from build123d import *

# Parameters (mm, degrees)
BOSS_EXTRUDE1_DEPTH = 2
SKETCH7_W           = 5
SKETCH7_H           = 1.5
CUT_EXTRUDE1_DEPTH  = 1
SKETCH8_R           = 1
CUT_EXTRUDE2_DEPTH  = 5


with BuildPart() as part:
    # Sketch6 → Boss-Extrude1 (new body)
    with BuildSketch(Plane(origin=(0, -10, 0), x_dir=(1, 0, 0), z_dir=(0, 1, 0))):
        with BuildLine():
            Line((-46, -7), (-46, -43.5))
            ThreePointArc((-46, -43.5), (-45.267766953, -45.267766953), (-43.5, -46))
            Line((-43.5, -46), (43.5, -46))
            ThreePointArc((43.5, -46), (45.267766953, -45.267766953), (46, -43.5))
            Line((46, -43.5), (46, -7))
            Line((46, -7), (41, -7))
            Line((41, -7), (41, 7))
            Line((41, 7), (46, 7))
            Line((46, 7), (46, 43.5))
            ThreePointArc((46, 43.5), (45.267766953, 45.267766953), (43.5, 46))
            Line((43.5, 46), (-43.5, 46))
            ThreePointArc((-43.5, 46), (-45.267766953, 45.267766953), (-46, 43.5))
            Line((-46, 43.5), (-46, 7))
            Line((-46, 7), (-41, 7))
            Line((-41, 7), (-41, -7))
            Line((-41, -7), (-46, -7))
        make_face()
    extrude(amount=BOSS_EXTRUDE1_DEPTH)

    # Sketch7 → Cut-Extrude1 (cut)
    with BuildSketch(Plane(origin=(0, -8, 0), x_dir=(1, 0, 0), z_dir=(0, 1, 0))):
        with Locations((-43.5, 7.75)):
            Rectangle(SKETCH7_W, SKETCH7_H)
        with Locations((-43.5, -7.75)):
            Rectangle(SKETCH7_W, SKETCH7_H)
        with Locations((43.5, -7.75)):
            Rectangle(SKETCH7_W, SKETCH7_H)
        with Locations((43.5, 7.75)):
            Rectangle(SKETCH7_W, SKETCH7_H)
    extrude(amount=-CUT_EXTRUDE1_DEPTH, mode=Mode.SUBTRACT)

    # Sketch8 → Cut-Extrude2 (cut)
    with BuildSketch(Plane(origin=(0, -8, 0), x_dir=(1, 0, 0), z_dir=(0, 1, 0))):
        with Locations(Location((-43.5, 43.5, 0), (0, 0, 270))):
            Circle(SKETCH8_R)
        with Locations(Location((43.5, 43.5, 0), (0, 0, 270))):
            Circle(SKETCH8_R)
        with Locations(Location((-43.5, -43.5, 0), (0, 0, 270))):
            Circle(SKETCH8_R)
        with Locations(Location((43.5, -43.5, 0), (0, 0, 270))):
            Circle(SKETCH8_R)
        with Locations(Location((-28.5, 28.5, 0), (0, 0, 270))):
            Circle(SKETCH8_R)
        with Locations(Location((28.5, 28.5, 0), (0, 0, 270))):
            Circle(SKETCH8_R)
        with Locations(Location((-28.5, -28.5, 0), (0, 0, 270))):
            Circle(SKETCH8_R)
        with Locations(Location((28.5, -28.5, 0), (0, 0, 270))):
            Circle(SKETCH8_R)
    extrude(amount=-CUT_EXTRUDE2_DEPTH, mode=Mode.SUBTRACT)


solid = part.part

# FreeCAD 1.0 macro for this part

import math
import FreeCAD as App
import Part
import Sketcher
from FreeCAD import Vector
Q = App.Units.Quantity


def add_polygon(sketch, points):
    """Adds a closed chain of lines whose ends are joined by coincident constraints."""
    first, n = sketch.GeometryCount, len(points)
    for a, b in zip(points, points[1:] + points[:1]):
        sketch.addGeometry(Part.LineSegment(App.Vector(*a, 0), App.Vector(*b, 0)), False)
    for i in range(n):
        sketch.addConstraint(Sketcher.Constraint("Coincident", first + i, 2, first + (i + 1) % n, 1))

doc = App.newDocument("Part")
body = doc.addObject("PartDesign::Body", "Body")

# Sketch on XZ plane
sketch1 = doc.addObject("Sketcher::SketchObject", "Sketch")
body.addObject(sketch1)
sketch1.AttachmentSupport = (doc.XZ_Plane, [""])
sketch1.MapMode = "FlatFace"
sketch1.AttachmentOffset = App.Placement(Vector(0, 0, 10), App.Rotation())
sketch1.addGeometry(Part.LineSegment(Vector(-46, 7, 0), Vector(-46, 43.5, 0)), False)
sketch1.addGeometry(Part.ArcOfCircle(Part.Circle(Vector(-43.5, 43.5, 0), Vector(0, 0, 1), 2.5), math.radians(90), math.radians(180)), False)
sketch1.addGeometry(Part.LineSegment(Vector(-43.5, 46, 0), Vector(43.5, 46, 0)), False)
sketch1.addGeometry(Part.ArcOfCircle(Part.Circle(Vector(43.5, 43.5, 0), Vector(0, 0, 1), 2.5), math.radians(0), math.radians(90)), False)
sketch1.addGeometry(Part.LineSegment(Vector(46, 43.5, 0), Vector(46, 7, 0)), False)
sketch1.addGeometry(Part.LineSegment(Vector(46, 7, 0), Vector(41, 7, 0)), False)
sketch1.addGeometry(Part.LineSegment(Vector(41, 7, 0), Vector(41, -7, 0)), False)
sketch1.addGeometry(Part.LineSegment(Vector(41, -7, 0), Vector(46, -7, 0)), False)
sketch1.addGeometry(Part.LineSegment(Vector(46, -7, 0), Vector(46, -43.5, 0)), False)
sketch1.addGeometry(Part.ArcOfCircle(Part.Circle(Vector(43.5, -43.5, 0), Vector(0, 0, 1), 2.5), math.radians(-90), math.radians(0)), False)
sketch1.addGeometry(Part.LineSegment(Vector(43.5, -46, 0), Vector(-43.5, -46, 0)), False)
sketch1.addGeometry(Part.ArcOfCircle(Part.Circle(Vector(-43.5, -43.5, 0), Vector(0, 0, 1), 2.5), math.radians(180), math.radians(270)), False)
sketch1.addGeometry(Part.LineSegment(Vector(-46, -43.5, 0), Vector(-46, -7, 0)), False)
sketch1.addGeometry(Part.LineSegment(Vector(-46, -7, 0), Vector(-41, -7, 0)), False)
sketch1.addGeometry(Part.LineSegment(Vector(-41, -7, 0), Vector(-41, 7, 0)), False)
sketch1.addGeometry(Part.LineSegment(Vector(-41, 7, 0), Vector(-46, 7, 0)), False)
sketch1.addConstraint(Sketcher.Constraint("Tangent", 0, 2, 1, 2))
sketch1.addConstraint(Sketcher.Constraint("Tangent", 1, 1, 2, 1))
sketch1.addConstraint(Sketcher.Constraint("Tangent", 2, 2, 3, 2))
sketch1.addConstraint(Sketcher.Constraint("Tangent", 3, 1, 4, 1))
sketch1.addConstraint(Sketcher.Constraint("Coincident", 4, 2, 5, 1))
sketch1.addConstraint(Sketcher.Constraint("Coincident", 5, 2, 6, 1))
sketch1.addConstraint(Sketcher.Constraint("Coincident", 6, 2, 7, 1))
sketch1.addConstraint(Sketcher.Constraint("Coincident", 7, 2, 8, 1))
sketch1.addConstraint(Sketcher.Constraint("Tangent", 8, 2, 9, 2))
sketch1.addConstraint(Sketcher.Constraint("Tangent", 9, 1, 10, 1))
sketch1.addConstraint(Sketcher.Constraint("Tangent", 10, 2, 11, 2))
sketch1.addConstraint(Sketcher.Constraint("Tangent", 11, 1, 12, 1))
sketch1.addConstraint(Sketcher.Constraint("Coincident", 12, 2, 13, 1))
sketch1.addConstraint(Sketcher.Constraint("Coincident", 13, 2, 14, 1))
sketch1.addConstraint(Sketcher.Constraint("Coincident", 14, 2, 15, 1))
sketch1.addConstraint(Sketcher.Constraint("Coincident", 15, 2, 0, 1))
sketch1.addConstraint(Sketcher.Constraint("Vertical", 0))
sketch1.addConstraint(Sketcher.Constraint("Horizontal", 2))
sketch1.addConstraint(Sketcher.Constraint("Vertical", 4))
sketch1.addConstraint(Sketcher.Constraint("Horizontal", 5))
sketch1.addConstraint(Sketcher.Constraint("Vertical", 6))
sketch1.addConstraint(Sketcher.Constraint("Horizontal", 7))
sketch1.addConstraint(Sketcher.Constraint("Vertical", 8))
sketch1.addConstraint(Sketcher.Constraint("Horizontal", 10))
sketch1.addConstraint(Sketcher.Constraint("Vertical", 12))
sketch1.addConstraint(Sketcher.Constraint("Horizontal", 13))
sketch1.addConstraint(Sketcher.Constraint("Vertical", 14))
sketch1.addConstraint(Sketcher.Constraint("Horizontal", 15))
sketch1.addConstraint(Sketcher.Constraint("Equal", 1, 3))
sketch1.addConstraint(Sketcher.Constraint("Equal", 3, 9))
sketch1.addConstraint(Sketcher.Constraint("Equal", 9, 11))
sketch1.addConstraint(Sketcher.Constraint("Symmetric", 1, 3, 9, 3, -1, 1))
sketch1.addConstraint(Sketcher.Constraint("Symmetric", 4, 2, 12, 2, -1, 1))
sketch1.addConstraint(Sketcher.Constraint("Symmetric", 6, 2, 14, 2, -1, 1))
sketch1.addConstraint(Sketcher.Constraint("Symmetric", 7, 2, 12, 2, -2))
sketch1.addConstraint(Sketcher.Constraint("Radius", 1, Q("2.5 mm")))
sketch1.addConstraint(Sketcher.Constraint("DistanceX", 2, 1, 2, 2, Q("87 mm")))
sketch1.addConstraint(Sketcher.Constraint("DistanceX", 5, 2, 5, 1, Q("5 mm")))
sketch1.addConstraint(Sketcher.Constraint("DistanceY", 6, 2, 6, 1, Q("14 mm")))
sketch1.addConstraint(Sketcher.Constraint("DistanceY", 0, 1, 0, 2, Q("36.5 mm")))
pad1 = doc.addObject("PartDesign::Pad", "Pad")
body.addObject(pad1)
pad1.Profile = sketch1
pad1.Length = 2
pad1.Reversed = True

# Sketch on XZ plane
sketch2 = doc.addObject("Sketcher::SketchObject", "Sketch001")
body.addObject(sketch2)
sketch2.AttachmentSupport = (doc.XZ_Plane, [""])
sketch2.MapMode = "FlatFace"
sketch2.AttachmentOffset = App.Placement(Vector(0, 0, 8), App.Rotation())
add_polygon(sketch2, [(-46, -8.5), (-46, -7), (-41, -7), (-41, -8.5)])  # lines 0-3
add_polygon(sketch2, [(-46, 7), (-46, 8.5), (-41, 8.5), (-41, 7)])  # lines 4-7
add_polygon(sketch2, [(41, 7), (41, 8.5), (46, 8.5), (46, 7)])  # lines 8-11
add_polygon(sketch2, [(41, -8.5), (41, -7), (46, -7), (46, -8.5)])  # lines 12-15
sketch2.addConstraint(Sketcher.Constraint("Vertical", 0))
sketch2.addConstraint(Sketcher.Constraint("Horizontal", 1))
sketch2.addConstraint(Sketcher.Constraint("Vertical", 2))
sketch2.addConstraint(Sketcher.Constraint("Horizontal", 3))
sketch2.addConstraint(Sketcher.Constraint("Vertical", 4))
sketch2.addConstraint(Sketcher.Constraint("Horizontal", 5))
sketch2.addConstraint(Sketcher.Constraint("Vertical", 6))
sketch2.addConstraint(Sketcher.Constraint("Horizontal", 7))
sketch2.addConstraint(Sketcher.Constraint("Vertical", 8))
sketch2.addConstraint(Sketcher.Constraint("Horizontal", 9))
sketch2.addConstraint(Sketcher.Constraint("Vertical", 10))
sketch2.addConstraint(Sketcher.Constraint("Horizontal", 11))
sketch2.addConstraint(Sketcher.Constraint("Vertical", 12))
sketch2.addConstraint(Sketcher.Constraint("Horizontal", 13))
sketch2.addConstraint(Sketcher.Constraint("Vertical", 14))
sketch2.addConstraint(Sketcher.Constraint("Horizontal", 15))
sketch2.addConstraint(Sketcher.Constraint("Symmetric", 2, 2, 8, 2, -1, 1))
sketch2.addConstraint(Sketcher.Constraint("Symmetric", 0, 2, 10, 2, -1, 1))
sketch2.addConstraint(Sketcher.Constraint("Symmetric", 6, 2, 12, 2, -1, 1))
sketch2.addConstraint(Sketcher.Constraint("Symmetric", 4, 2, 14, 2, -1, 1))
sketch2.addConstraint(Sketcher.Constraint("Symmetric", 5, 2, 8, 2, -2))
sketch2.addConstraint(Sketcher.Constraint("Symmetric", 7, 2, 10, 2, -2))
sketch2.addConstraint(Sketcher.Constraint("DistanceX", 1, 1, 1, 2, Q("5 mm")))
sketch2.addConstraint(Sketcher.Constraint("DistanceY", 0, 1, 0, 2, Q("1.5 mm")))
sketch2.addConstraint(Sketcher.Constraint("DistanceX", 0, 2, -1, 1, Q("46 mm")))
sketch2.addConstraint(Sketcher.Constraint("DistanceY", 0, 2, -1, 1, Q("7 mm")))
pocket1 = doc.addObject("PartDesign::Pocket", "Pocket")
body.addObject(pocket1)
pocket1.Profile = sketch2
pocket1.Length = 1
pocket1.Reversed = True

# Sketch on XZ plane
sketch3 = doc.addObject("Sketcher::SketchObject", "Sketch002")
body.addObject(sketch3)
sketch3.AttachmentSupport = (doc.XZ_Plane, [""])
sketch3.MapMode = "FlatFace"
sketch3.AttachmentOffset = App.Placement(Vector(0, 0, 8), App.Rotation())
sketch3.addGeometry(Part.Circle(Vector(-43.5, -43.5, 0), Vector(0, 0, 1), 1), False)
sketch3.addGeometry(Part.Circle(Vector(43.5, -43.5, 0), Vector(0, 0, 1), 1), False)
sketch3.addGeometry(Part.Circle(Vector(-43.5, 43.5, 0), Vector(0, 0, 1), 1), False)
sketch3.addGeometry(Part.Circle(Vector(43.5, 43.5, 0), Vector(0, 0, 1), 1), False)
sketch3.addGeometry(Part.Circle(Vector(-28.5, -28.5, 0), Vector(0, 0, 1), 1), False)
sketch3.addGeometry(Part.Circle(Vector(28.5, -28.5, 0), Vector(0, 0, 1), 1), False)
sketch3.addGeometry(Part.Circle(Vector(-28.5, 28.5, 0), Vector(0, 0, 1), 1), False)
sketch3.addGeometry(Part.Circle(Vector(28.5, 28.5, 0), Vector(0, 0, 1), 1), False)
sketch3.addConstraint(Sketcher.Constraint("Equal", 0, 1))
sketch3.addConstraint(Sketcher.Constraint("Equal", 1, 2))
sketch3.addConstraint(Sketcher.Constraint("Equal", 2, 3))
sketch3.addConstraint(Sketcher.Constraint("Equal", 3, 4))
sketch3.addConstraint(Sketcher.Constraint("Equal", 4, 5))
sketch3.addConstraint(Sketcher.Constraint("Equal", 5, 6))
sketch3.addConstraint(Sketcher.Constraint("Equal", 6, 7))
sketch3.addConstraint(Sketcher.Constraint("Symmetric", 1, 3, 2, 3, -1, 1))
sketch3.addConstraint(Sketcher.Constraint("Symmetric", 0, 3, 3, 3, -1, 1))
sketch3.addConstraint(Sketcher.Constraint("Symmetric", 5, 3, 6, 3, -1, 1))
sketch3.addConstraint(Sketcher.Constraint("Symmetric", 4, 3, 7, 3, -1, 1))
sketch3.addConstraint(Sketcher.Constraint("Symmetric", 0, 3, 1, 3, -2))
sketch3.addConstraint(Sketcher.Constraint("Symmetric", 4, 3, 5, 3, -2))
sketch3.addConstraint(Sketcher.Constraint("Diameter", 0, Q("2 mm")))
sketch3.addConstraint(Sketcher.Constraint("DistanceX", 0, 3, 1, 3, Q("87 mm")))
sketch3.addConstraint(Sketcher.Constraint("DistanceY", 0, 3, 2, 3, Q("87 mm")))
sketch3.addConstraint(Sketcher.Constraint("DistanceX", 0, 3, 4, 3, Q("15 mm")))
sketch3.addConstraint(Sketcher.Constraint("DistanceY", 0, 3, 4, 3, Q("15 mm")))
pocket2 = doc.addObject("PartDesign::Pocket", "Pocket001")
body.addObject(pocket2)
pocket2.Profile = sketch3
pocket2.Length = 5
pocket2.Reversed = True

doc.recompute()
